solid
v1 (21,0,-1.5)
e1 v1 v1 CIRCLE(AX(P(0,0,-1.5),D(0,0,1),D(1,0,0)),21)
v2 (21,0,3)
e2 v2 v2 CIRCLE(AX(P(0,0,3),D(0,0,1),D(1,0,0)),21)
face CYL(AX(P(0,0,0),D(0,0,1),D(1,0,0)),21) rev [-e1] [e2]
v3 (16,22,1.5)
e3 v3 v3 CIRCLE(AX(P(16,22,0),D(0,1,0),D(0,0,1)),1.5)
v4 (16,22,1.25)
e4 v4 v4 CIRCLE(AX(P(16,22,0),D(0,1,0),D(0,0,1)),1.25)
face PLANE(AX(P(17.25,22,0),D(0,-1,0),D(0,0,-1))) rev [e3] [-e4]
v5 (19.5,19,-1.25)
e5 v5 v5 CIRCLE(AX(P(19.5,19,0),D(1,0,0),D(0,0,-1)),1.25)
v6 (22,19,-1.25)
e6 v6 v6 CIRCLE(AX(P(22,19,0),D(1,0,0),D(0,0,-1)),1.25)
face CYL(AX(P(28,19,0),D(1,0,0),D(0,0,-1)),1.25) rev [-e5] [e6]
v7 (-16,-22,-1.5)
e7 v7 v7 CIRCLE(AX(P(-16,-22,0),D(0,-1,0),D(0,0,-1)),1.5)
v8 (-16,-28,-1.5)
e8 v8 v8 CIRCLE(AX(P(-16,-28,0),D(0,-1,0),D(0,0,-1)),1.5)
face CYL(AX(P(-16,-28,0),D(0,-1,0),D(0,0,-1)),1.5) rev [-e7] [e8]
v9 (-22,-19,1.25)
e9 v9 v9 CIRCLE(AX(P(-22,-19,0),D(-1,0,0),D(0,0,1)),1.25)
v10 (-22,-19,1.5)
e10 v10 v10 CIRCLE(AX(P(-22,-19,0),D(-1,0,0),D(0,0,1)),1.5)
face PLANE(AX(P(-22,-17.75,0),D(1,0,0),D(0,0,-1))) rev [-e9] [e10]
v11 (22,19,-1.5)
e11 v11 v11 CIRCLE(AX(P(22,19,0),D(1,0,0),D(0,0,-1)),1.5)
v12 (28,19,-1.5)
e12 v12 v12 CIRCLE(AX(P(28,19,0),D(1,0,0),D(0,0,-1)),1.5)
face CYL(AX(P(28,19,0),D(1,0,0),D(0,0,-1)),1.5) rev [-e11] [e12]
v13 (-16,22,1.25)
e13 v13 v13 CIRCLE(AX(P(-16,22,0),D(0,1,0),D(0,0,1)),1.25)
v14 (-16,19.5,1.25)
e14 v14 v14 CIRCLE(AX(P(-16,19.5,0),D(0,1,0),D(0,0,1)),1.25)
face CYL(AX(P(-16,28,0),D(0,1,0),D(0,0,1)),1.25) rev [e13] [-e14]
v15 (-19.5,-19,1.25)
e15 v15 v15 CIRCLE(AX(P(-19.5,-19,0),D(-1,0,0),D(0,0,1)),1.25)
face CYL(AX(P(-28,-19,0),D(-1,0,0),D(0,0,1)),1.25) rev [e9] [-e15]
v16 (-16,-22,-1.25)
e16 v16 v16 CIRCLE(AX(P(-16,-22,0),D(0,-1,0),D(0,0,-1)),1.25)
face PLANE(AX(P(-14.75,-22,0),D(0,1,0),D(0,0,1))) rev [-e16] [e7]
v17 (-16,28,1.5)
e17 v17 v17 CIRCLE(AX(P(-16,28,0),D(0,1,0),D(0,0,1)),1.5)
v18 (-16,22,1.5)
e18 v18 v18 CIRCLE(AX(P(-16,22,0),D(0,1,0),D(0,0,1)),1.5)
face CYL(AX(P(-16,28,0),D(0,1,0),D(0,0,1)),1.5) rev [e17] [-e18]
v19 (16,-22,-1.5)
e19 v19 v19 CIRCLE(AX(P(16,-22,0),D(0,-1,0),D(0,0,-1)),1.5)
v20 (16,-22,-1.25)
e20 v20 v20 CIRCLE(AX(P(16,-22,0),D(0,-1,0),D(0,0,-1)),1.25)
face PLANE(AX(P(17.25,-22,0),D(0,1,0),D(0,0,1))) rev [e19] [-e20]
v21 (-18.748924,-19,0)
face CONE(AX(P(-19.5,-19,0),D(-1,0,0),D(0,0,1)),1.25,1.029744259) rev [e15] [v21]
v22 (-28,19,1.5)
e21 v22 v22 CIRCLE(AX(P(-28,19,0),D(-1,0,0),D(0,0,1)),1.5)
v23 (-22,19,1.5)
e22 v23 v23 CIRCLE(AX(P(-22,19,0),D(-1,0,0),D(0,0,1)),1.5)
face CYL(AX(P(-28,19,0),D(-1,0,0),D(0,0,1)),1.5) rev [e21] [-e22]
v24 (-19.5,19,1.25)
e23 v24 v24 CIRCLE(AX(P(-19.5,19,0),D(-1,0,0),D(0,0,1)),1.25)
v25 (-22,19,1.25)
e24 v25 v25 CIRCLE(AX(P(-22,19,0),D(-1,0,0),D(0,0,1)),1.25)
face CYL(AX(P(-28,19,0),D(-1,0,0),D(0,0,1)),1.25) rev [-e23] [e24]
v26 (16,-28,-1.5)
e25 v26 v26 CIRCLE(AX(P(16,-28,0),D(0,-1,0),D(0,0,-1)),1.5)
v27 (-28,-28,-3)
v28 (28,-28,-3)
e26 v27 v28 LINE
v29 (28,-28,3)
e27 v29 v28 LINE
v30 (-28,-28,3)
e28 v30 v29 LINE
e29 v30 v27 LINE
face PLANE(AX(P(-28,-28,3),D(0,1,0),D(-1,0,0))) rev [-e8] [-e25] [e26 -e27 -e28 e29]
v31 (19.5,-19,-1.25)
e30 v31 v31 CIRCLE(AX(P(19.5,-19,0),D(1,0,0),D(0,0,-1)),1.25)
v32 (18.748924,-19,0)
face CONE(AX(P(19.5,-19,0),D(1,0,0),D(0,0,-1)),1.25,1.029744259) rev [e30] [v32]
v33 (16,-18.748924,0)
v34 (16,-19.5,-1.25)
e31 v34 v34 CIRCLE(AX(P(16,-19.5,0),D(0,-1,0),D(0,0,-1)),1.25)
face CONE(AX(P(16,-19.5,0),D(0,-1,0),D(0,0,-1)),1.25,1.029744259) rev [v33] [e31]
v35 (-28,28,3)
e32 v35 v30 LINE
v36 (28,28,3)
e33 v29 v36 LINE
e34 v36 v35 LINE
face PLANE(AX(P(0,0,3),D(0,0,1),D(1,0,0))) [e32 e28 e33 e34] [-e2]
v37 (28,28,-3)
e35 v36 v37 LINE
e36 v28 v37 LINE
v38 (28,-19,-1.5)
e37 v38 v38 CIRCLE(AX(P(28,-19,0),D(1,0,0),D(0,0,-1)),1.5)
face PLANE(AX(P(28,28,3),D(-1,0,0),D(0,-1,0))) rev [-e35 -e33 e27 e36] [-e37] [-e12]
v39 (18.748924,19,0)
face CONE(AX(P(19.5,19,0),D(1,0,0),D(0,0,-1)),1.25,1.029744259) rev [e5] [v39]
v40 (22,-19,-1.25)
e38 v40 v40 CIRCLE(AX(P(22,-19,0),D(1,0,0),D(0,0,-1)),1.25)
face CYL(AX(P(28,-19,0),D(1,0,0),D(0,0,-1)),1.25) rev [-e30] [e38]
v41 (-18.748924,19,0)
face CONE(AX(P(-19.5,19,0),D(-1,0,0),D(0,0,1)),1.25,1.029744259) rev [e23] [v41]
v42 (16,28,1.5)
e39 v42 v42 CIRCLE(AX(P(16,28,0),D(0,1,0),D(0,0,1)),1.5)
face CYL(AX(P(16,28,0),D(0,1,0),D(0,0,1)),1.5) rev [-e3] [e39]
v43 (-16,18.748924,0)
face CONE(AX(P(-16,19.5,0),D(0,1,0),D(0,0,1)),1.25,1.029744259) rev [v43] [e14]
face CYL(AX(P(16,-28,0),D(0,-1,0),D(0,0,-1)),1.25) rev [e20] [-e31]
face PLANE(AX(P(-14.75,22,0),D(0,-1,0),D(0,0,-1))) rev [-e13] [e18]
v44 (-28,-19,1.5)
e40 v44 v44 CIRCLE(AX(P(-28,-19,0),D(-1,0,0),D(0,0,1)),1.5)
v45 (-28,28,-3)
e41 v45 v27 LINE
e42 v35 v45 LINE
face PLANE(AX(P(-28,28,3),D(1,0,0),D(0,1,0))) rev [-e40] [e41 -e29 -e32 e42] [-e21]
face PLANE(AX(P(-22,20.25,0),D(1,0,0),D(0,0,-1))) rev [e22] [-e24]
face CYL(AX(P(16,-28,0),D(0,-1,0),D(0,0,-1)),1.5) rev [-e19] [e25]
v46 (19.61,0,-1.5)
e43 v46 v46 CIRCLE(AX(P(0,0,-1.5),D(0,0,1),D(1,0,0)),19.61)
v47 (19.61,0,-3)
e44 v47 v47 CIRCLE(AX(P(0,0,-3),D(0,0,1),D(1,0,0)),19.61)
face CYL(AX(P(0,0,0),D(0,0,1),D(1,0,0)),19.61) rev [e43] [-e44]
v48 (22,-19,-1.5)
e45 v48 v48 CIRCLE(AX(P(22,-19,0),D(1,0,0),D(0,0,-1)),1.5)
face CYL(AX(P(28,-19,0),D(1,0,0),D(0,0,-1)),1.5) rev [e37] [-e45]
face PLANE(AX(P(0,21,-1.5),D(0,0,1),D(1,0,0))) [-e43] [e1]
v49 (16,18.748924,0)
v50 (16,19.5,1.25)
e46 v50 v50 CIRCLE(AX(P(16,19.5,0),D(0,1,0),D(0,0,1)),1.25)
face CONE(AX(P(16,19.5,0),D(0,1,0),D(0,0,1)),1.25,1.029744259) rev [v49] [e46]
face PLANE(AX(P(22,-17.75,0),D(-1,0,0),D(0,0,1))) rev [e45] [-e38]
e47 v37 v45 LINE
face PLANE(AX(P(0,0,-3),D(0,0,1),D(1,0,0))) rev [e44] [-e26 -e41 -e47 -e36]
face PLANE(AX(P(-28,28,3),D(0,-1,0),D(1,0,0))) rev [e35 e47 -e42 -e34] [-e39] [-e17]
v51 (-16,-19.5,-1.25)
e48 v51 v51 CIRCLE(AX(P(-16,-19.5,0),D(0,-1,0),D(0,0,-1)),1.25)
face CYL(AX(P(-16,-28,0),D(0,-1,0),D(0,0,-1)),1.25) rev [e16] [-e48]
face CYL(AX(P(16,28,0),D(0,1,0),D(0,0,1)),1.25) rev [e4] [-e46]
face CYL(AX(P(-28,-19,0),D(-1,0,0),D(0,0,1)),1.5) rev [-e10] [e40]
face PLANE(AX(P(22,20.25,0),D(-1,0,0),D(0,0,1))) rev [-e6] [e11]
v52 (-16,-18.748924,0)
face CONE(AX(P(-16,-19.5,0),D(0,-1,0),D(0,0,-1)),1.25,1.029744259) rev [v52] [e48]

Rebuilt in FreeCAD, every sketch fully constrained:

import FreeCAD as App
import Part
import Sketcher

doc = App.newDocument("Part")
body = doc.addObject("PartDesign::Body", "Body")

sketch1 = body.newObject("Sketcher::SketchObject", "Sketch")
sketch1.AttachmentSupport = (doc.getObject("XY_Plane"), [""])
sketch1.MapMode = "FlatFace"
sketch1.addGeometry(Part.LineSegment(App.Vector(-28, 28, 0), App.Vector(-28, -28, 0)), False)
sketch1.addGeometry(Part.LineSegment(App.Vector(-28, -28, 0), App.Vector(28, -28, 0)), False)
sketch1.addGeometry(Part.LineSegment(App.Vector(28, -28, 0), App.Vector(28, 28, 0)), False)
sketch1.addGeometry(Part.LineSegment(App.Vector(28, 28, 0), App.Vector(-28, 28, 0)), False)
sketch1.addConstraint(Sketcher.Constraint("Coincident", 0, 2, 1, 1))
sketch1.addConstraint(Sketcher.Constraint("Coincident", 1, 2, 2, 1))
sketch1.addConstraint(Sketcher.Constraint("Coincident", 2, 2, 3, 1))
sketch1.addConstraint(Sketcher.Constraint("Coincident", 3, 2, 0, 1))
sketch1.addConstraint(Sketcher.Constraint("Vertical", 0))
sketch1.addConstraint(Sketcher.Constraint("Horizontal", 1))
sketch1.addConstraint(Sketcher.Constraint("Vertical", 2))
sketch1.addConstraint(Sketcher.Constraint("Horizontal", 3))
sketch1.addConstraint(Sketcher.Constraint("Symmetric", 0, 2, 2, 2, -1, 1))
sketch1.addConstraint(Sketcher.Constraint("Equal", 3, 0))
sketch1.addConstraint(Sketcher.Constraint("DistanceX", 1, 1, 1, 2, 56.0))
pad1 = body.newObject("PartDesign::Pad", "Pad")
pad1.Profile = sketch1
pad1.Length = 6
pad1.Midplane = True

sketch2 = body.newObject("Sketcher::SketchObject", "Sketch001")
sketch2.AttachmentSupport = (doc.getObject("YZ_Plane"), [""])
sketch2.MapMode = "FlatFace"
sketch2.addGeometry(Part.LineSegment(App.Vector(21, -1.5, 0), App.Vector(21, 3, 0)), False)
sketch2.addGeometry(Part.LineSegment(App.Vector(21, 3, 0), App.Vector(0, 3, 0)), False)
sketch2.addGeometry(Part.LineSegment(App.Vector(0, 3, 0), App.Vector(0, -3, 0)), False)
sketch2.addGeometry(Part.LineSegment(App.Vector(0, -3, 0), App.Vector(19.6, -3, 0)), False)
sketch2.addGeometry(Part.LineSegment(App.Vector(19.6, -3, 0), App.Vector(19.6, -1.5, 0)), False)
sketch2.addGeometry(Part.LineSegment(App.Vector(19.6, -1.5, 0), App.Vector(21, -1.5, 0)), False)
sketch2.addConstraint(Sketcher.Constraint("Coincident", 0, 2, 1, 1))
sketch2.addConstraint(Sketcher.Constraint("Coincident", 1, 2, 2, 1))
sketch2.addConstraint(Sketcher.Constraint("Coincident", 2, 2, 3, 1))
sketch2.addConstraint(Sketcher.Constraint("Coincident", 3, 2, 4, 1))
sketch2.addConstraint(Sketcher.Constraint("Coincident", 4, 2, 5, 1))
sketch2.addConstraint(Sketcher.Constraint("Coincident", 5, 2, 0, 1))
sketch2.addConstraint(Sketcher.Constraint("Vertical", 0))
sketch2.addConstraint(Sketcher.Constraint("Horizontal", 1))
sketch2.addConstraint(Sketcher.Constraint("Vertical", 2))
sketch2.addConstraint(Sketcher.Constraint("Horizontal", 3))
sketch2.addConstraint(Sketcher.Constraint("Vertical", 4))
sketch2.addConstraint(Sketcher.Constraint("Horizontal", 5))
sketch2.addConstraint(Sketcher.Constraint("Symmetric", 1, 2, 2, 2, -1, 1))
sketch2.addConstraint(Sketcher.Constraint("DistanceX", 1, 2, 1, 1, 21.0))
sketch2.addConstraint(Sketcher.Constraint("DistanceY", 2, 2, 2, 1, 6.0))
sketch2.addConstraint(Sketcher.Constraint("DistanceY", 0, 1, 0, 2, 4.5))
sketch2.addConstraint(Sketcher.Constraint("DistanceX", 3, 1, 3, 2, 19.61))
groove = body.newObject("PartDesign::Groove", "Groove")
groove.Profile = sketch2
groove.ReferenceAxis = (sketch2, ["V_Axis"])
groove.Angle = 360

sketch3 = body.newObject("Sketcher::SketchObject", "Sketch002")
sketch3.AttachmentSupport = (doc.getObject("XZ_Plane"), [""])
sketch3.MapMode = "FlatFace"
sketch3.AttachmentOffset = App.Placement(App.Vector(0, 0, -28), App.Rotation())
sketch3.addGeometry(Part.Circle(App.Vector(-16, 0, 0), App.Vector(0, 0, 1), 1.2), False)
sketch3.addGeometry(Part.Circle(App.Vector(16, 0, 0), App.Vector(0, 0, 1), 1.2), False)
sketch3.addConstraint(Sketcher.Constraint("Equal", 0, 1))
sketch3.addConstraint(Sketcher.Constraint("Symmetric", 0, 3, 1, 3, -1, 1))
sketch3.addConstraint(Sketcher.Constraint("PointOnObject", 0, 3, -1))
sketch3.addConstraint(Sketcher.Constraint("Diameter", 0, 2.5))
sketch3.addConstraint(Sketcher.Constraint("DistanceX", 0, 3, -1, 1, 16.0))
doc.recompute()
hole = body.newObject("PartDesign::Hole", "Hole")
hole.Profile = sketch3
hole.ThreadType = "None"
hole.Diameter = 2.5
hole.DepthType = "Dimension"
hole.Depth = 8.5
hole.DrillPoint = "Angled"
hole.DrillPointAngle = 118
hole.HoleCutType = "Counterbore"
hole.HoleCutDiameter = 3
hole.HoleCutDepth = 6
hole.Reversed = True

sketch4 = body.newObject("Sketcher::SketchObject", "Sketch003")
sketch4.AttachmentSupport = (doc.getObject("YZ_Plane"), [""])
sketch4.MapMode = "FlatFace"
sketch4.AttachmentOffset = App.Placement(App.Vector(0, 0, 28), App.Rotation())
sketch4.addGeometry(Part.Circle(App.Vector(19, 0, 0), App.Vector(0, 0, 1), 1.2), False)
sketch4.addGeometry(Part.Circle(App.Vector(-19, 0, 0), App.Vector(0, 0, 1), 1.2), False)
sketch4.addConstraint(Sketcher.Constraint("Equal", 0, 1))
sketch4.addConstraint(Sketcher.Constraint("Symmetric", 0, 3, 1, 3, -1, 1))
sketch4.addConstraint(Sketcher.Constraint("PointOnObject", 0, 3, -1))
sketch4.addConstraint(Sketcher.Constraint("Diameter", 0, 2.5))
sketch4.addConstraint(Sketcher.Constraint("DistanceX", -1, 1, 0, 3, 19.0))
doc.recompute()
hole2 = body.newObject("PartDesign::Hole", "Hole001")
hole2.Profile = sketch4
hole2.ThreadType = "None"
hole2.Diameter = 2.5
hole2.DepthType = "Dimension"
hole2.Depth = 8.5
hole2.DrillPoint = "Angled"
hole2.DrillPointAngle = 118
hole2.HoleCutType = "Counterbore"
hole2.HoleCutDiameter = 3
hole2.HoleCutDepth = 6

sketch5 = body.newObject("Sketcher::SketchObject", "Sketch004")
sketch5.AttachmentSupport = (doc.getObject("XZ_Plane"), [""])
sketch5.MapMode = "FlatFace"
sketch5.AttachmentOffset = App.Placement(App.Vector(0, 0, 28), App.Rotation())
sketch5.addGeometry(Part.Circle(App.Vector(16, 0, 0), App.Vector(0, 0, 1), 1.2), False)
sketch5.addGeometry(Part.Circle(App.Vector(-16, 0, 0), App.Vector(0, 0, 1), 1.2), False)
sketch5.addConstraint(Sketcher.Constraint("Equal", 0, 1))
sketch5.addConstraint(Sketcher.Constraint("Symmetric", 0, 3, 1, 3, -1, 1))
sketch5.addConstraint(Sketcher.Constraint("PointOnObject", 0, 3, -1))
sketch5.addConstraint(Sketcher.Constraint("Diameter", 0, 2.5))
sketch5.addConstraint(Sketcher.Constraint("DistanceX", -1, 1, 0, 3, 16.0))
doc.recompute()
hole3 = body.newObject("PartDesign::Hole", "Hole002")
hole3.Profile = sketch5
hole3.ThreadType = "None"
hole3.Diameter = 2.5
hole3.DepthType = "Dimension"
hole3.Depth = 8.5
hole3.DrillPoint = "Angled"
hole3.DrillPointAngle = 118
hole3.HoleCutType = "Counterbore"
hole3.HoleCutDiameter = 3
hole3.HoleCutDepth = 6

sketch6 = body.newObject("Sketcher::SketchObject", "Sketch005")
sketch6.AttachmentSupport = (doc.getObject("YZ_Plane"), [""])
sketch6.MapMode = "FlatFace"
sketch6.AttachmentOffset = App.Placement(App.Vector(0, 0, -28), App.Rotation())
sketch6.addGeometry(Part.Circle(App.Vector(19, 0, 0), App.Vector(0, 0, 1), 1.2), False)
sketch6.addGeometry(Part.Circle(App.Vector(-19, 0, 0), App.Vector(0, 0, 1), 1.2), False)
sketch6.addConstraint(Sketcher.Constraint("Equal", 0, 1))
sketch6.addConstraint(Sketcher.Constraint("Symmetric", 0, 3, 1, 3, -1, 1))
sketch6.addConstraint(Sketcher.Constraint("PointOnObject", 0, 3, -1))
sketch6.addConstraint(Sketcher.Constraint("Diameter", 0, 2.5))
sketch6.addConstraint(Sketcher.Constraint("DistanceX", -1, 1, 0, 3, 19.0))
doc.recompute()
hole4 = body.newObject("PartDesign::Hole", "Hole003")
hole4.Profile = sketch6
hole4.ThreadType = "None"
hole4.Diameter = 2.5
hole4.DepthType = "Dimension"
hole4.Depth = 8.5
hole4.DrillPoint = "Angled"
hole4.DrillPointAngle = 118
hole4.HoleCutType = "Counterbore"
hole4.HoleCutDiameter = 3
hole4.HoleCutDepth = 6
hole4.Reversed = True

doc.recompute()
